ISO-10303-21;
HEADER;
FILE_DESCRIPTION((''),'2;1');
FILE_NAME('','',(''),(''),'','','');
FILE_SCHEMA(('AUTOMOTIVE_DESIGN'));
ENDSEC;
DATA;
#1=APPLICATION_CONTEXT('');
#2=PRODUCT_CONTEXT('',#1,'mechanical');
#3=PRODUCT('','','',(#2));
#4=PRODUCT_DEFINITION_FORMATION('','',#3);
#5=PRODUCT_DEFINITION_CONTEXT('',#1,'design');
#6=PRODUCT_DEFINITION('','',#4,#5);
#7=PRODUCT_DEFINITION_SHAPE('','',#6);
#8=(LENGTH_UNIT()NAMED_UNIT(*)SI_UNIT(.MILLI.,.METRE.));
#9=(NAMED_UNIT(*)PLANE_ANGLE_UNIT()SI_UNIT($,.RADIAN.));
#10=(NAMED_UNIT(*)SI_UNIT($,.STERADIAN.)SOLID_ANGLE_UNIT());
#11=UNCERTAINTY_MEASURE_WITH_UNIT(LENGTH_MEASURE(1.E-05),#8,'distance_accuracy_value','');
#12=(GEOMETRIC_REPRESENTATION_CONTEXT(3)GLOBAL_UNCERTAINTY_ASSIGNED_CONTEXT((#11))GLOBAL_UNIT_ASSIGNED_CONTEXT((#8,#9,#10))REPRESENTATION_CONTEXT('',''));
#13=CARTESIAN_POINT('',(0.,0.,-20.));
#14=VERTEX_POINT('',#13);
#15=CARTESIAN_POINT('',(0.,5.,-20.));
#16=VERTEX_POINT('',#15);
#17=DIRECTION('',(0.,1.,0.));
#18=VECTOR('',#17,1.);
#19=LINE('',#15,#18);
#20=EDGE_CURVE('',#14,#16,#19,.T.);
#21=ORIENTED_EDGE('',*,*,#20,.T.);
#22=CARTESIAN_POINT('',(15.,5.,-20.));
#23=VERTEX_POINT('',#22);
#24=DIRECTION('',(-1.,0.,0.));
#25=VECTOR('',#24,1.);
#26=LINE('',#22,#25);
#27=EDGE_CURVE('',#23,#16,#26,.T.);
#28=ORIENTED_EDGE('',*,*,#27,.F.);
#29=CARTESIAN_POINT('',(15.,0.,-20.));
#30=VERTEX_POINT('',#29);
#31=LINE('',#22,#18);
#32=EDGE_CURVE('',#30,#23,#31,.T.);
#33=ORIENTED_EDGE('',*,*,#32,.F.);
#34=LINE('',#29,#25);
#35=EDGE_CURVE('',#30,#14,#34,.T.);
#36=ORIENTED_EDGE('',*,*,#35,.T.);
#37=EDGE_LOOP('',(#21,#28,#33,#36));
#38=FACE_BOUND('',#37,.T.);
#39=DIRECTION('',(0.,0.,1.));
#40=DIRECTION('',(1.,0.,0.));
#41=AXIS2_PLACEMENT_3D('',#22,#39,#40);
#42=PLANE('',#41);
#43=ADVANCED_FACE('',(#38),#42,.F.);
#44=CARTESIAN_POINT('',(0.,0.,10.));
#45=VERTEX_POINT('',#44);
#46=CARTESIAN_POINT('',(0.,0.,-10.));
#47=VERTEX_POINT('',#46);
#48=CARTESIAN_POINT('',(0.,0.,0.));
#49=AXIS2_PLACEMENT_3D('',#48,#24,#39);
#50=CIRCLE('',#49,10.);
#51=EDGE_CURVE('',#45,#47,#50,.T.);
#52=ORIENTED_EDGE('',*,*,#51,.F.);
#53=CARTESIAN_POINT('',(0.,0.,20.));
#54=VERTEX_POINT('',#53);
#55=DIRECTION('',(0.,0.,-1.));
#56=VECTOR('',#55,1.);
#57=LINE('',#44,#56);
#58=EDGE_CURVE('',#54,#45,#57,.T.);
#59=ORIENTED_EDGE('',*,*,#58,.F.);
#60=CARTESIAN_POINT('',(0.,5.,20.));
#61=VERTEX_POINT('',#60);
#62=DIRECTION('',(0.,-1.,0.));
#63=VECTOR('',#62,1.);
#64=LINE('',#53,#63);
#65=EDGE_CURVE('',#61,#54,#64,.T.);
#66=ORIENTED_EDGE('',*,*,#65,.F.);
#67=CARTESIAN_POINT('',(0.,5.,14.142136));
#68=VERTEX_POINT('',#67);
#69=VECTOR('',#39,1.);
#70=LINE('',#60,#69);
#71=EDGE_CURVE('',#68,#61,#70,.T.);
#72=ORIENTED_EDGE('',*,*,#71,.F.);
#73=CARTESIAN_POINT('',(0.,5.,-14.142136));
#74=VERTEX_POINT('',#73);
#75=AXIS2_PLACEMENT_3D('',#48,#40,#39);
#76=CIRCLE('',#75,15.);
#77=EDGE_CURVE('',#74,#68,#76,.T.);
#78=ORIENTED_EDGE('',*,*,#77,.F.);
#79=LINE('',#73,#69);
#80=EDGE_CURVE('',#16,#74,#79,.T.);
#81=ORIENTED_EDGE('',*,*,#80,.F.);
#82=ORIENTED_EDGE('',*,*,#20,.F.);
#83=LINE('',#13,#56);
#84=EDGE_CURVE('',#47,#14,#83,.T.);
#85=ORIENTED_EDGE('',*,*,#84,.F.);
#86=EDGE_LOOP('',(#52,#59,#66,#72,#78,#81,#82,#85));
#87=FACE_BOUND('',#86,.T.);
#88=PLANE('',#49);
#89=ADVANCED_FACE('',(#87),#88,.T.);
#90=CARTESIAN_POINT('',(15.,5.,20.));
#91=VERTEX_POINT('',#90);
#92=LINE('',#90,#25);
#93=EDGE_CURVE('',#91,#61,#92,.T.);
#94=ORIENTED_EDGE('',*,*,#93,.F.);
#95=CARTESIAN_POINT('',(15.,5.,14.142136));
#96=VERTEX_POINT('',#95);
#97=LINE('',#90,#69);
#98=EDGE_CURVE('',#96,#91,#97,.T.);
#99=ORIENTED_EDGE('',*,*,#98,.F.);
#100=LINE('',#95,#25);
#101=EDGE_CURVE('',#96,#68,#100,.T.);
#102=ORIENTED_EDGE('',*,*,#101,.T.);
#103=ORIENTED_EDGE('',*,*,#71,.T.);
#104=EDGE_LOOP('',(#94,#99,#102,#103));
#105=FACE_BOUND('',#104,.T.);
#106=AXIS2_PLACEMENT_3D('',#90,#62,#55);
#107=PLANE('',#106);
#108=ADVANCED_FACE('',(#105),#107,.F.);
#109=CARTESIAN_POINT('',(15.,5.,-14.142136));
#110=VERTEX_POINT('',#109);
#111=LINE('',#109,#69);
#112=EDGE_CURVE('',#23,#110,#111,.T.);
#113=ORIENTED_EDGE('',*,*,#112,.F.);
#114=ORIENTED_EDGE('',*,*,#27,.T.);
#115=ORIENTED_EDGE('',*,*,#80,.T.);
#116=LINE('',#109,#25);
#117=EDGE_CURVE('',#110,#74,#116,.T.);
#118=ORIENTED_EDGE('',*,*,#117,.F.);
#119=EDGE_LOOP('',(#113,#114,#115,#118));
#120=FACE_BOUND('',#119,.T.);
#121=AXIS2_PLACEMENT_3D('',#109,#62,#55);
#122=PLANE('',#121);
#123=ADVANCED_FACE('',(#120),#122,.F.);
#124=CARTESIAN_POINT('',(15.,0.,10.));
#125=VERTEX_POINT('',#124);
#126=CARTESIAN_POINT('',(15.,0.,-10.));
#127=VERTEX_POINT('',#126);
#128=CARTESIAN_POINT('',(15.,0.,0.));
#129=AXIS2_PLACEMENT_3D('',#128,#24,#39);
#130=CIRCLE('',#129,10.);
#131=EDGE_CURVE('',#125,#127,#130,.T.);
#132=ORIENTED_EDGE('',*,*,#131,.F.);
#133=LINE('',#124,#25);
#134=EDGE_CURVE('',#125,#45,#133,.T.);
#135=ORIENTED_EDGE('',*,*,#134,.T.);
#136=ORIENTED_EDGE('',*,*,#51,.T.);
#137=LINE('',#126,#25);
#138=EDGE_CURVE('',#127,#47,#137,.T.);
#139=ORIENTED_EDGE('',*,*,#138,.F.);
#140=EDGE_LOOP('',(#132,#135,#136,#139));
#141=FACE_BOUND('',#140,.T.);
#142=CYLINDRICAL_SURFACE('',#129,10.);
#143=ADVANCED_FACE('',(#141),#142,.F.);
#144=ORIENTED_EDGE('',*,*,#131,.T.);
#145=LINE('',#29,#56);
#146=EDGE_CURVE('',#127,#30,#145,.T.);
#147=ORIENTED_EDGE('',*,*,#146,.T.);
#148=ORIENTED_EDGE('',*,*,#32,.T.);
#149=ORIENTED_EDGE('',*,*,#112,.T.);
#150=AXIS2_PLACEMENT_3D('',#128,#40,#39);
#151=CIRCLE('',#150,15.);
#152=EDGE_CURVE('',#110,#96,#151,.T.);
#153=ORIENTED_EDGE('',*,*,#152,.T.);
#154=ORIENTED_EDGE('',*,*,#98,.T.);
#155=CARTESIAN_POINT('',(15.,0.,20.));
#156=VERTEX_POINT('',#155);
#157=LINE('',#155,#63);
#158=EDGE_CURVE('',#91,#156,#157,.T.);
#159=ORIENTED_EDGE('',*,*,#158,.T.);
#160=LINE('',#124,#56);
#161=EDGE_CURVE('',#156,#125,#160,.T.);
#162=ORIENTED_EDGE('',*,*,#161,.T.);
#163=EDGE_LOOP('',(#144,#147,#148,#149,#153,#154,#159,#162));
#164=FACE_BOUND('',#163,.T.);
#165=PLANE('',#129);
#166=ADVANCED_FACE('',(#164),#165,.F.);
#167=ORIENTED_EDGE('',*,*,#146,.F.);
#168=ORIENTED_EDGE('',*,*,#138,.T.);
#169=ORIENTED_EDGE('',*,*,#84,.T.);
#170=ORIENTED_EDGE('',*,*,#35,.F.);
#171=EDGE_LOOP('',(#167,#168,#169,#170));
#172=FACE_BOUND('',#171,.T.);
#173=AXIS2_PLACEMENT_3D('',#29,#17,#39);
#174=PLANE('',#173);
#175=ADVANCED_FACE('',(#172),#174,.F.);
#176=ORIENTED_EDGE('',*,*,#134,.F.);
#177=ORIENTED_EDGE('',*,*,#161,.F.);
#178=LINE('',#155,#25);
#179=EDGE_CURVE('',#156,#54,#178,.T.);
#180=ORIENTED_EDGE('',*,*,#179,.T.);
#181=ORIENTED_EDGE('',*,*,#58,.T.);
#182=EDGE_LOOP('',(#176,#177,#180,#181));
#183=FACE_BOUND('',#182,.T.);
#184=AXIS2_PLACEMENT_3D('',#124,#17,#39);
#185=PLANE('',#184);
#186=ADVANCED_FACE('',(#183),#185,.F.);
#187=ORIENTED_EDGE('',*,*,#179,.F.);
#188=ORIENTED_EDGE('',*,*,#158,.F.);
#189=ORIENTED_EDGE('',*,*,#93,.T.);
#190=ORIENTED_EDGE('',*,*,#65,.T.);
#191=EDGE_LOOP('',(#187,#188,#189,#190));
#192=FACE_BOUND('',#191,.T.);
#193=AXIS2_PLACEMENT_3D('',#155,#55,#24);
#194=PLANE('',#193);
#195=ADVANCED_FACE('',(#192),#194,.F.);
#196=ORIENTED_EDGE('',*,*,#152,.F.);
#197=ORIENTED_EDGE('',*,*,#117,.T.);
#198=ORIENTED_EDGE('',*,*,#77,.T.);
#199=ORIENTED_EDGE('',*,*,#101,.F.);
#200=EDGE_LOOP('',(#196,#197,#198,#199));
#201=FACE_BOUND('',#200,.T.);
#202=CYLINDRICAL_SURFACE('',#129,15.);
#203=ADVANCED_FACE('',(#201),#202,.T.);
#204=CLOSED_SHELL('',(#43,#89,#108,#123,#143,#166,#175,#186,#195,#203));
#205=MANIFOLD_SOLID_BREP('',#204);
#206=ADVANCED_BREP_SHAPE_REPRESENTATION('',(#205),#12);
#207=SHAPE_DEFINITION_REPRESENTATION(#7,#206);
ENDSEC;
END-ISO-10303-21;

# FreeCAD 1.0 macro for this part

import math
import FreeCAD as App
import Part
import Sketcher

V = App.Vector

doc = App.newDocument("Part")
body = doc.addObject("PartDesign::Body", "Body")

# Sketch on YZ plane
sketch1 = doc.addObject("Sketcher::SketchObject", "Sketch")
body.addObject(sketch1)
sketch1.AttachmentSupport = (doc.YZ_Plane, [""])
sketch1.MapMode = "FlatFace"
sketch1.addGeometry(Part.LineSegment(V(0, 20, 0), V(0, 10, 0)), False)
sketch1.addGeometry(Part.ArcOfCircle(Part.Circle(V(0, 0, 0), V(0, 0, 1), 10), math.radians(-90), math.radians(90)), False)
sketch1.addGeometry(Part.LineSegment(V(0, -10, 0), V(0, -20, 0)), False)
sketch1.addGeometry(Part.LineSegment(V(0, -20, 0), V(5, -20, 0)), False)
sketch1.addGeometry(Part.LineSegment(V(5, -20, 0), V(5, -14.142136, 0)), False)
sketch1.addGeometry(Part.ArcOfCircle(Part.Circle(V(0, 0, 0), V(0, 0, 1), 15), math.radians(-70.528779), math.radians(70.528779)), False)
sketch1.addGeometry(Part.LineSegment(V(5, 14.142136, 0), V(5, 20, 0)), False)
sketch1.addGeometry(Part.LineSegment(V(5, 20, 0), V(0, 20, 0)), False)
sketch1.addConstraint(Sketcher.Constraint("Coincident", 0, 2, 1, 2))
sketch1.addConstraint(Sketcher.Constraint("Coincident", 1, 1, 2, 1))
sketch1.addConstraint(Sketcher.Constraint("Coincident", 2, 2, 3, 1))
sketch1.addConstraint(Sketcher.Constraint("Coincident", 3, 2, 4, 1))
sketch1.addConstraint(Sketcher.Constraint("Coincident", 4, 2, 5, 1))
sketch1.addConstraint(Sketcher.Constraint("Coincident", 5, 2, 6, 1))
sketch1.addConstraint(Sketcher.Constraint("Coincident", 6, 2, 7, 1))
sketch1.addConstraint(Sketcher.Constraint("Coincident", 7, 2, 0, 1))
sketch1.addConstraint(Sketcher.Constraint("Vertical", 0))
sketch1.addConstraint(Sketcher.Constraint("Vertical", 2))
sketch1.addConstraint(Sketcher.Constraint("Horizontal", 3))
sketch1.addConstraint(Sketcher.Constraint("Vertical", 4))
sketch1.addConstraint(Sketcher.Constraint("Vertical", 6))
sketch1.addConstraint(Sketcher.Constraint("Horizontal", 7))
sketch1.addConstraint(Sketcher.Constraint("Coincident", 1, 3, -1, 1))
sketch1.addConstraint(Sketcher.Constraint("Coincident", 5, 3, -1, 1))
sketch1.addConstraint(Sketcher.Constraint("Symmetric", 2, 2, 7, 2, -1, 1))
sketch1.addConstraint(Sketcher.Constraint("PointOnObject", 0, 2, -2))
sketch1.addConstraint(Sketcher.Constraint("Vertical", 4, 2, 5, 2))
sketch1.addConstraint(Sketcher.Constraint("Radius", 1, 10.0))
sketch1.addConstraint(Sketcher.Constraint("Radius", 5, 15.0))
sketch1.addConstraint(Sketcher.Constraint("DistanceX", 3, 1, 3, 2, 5.0))
sketch1.addConstraint(Sketcher.Constraint("DistanceY", 0, 2, 0, 1, 10.0))
pad1 = doc.addObject("PartDesign::Pad", "Pad")
body.addObject(pad1)
pad1.Profile = sketch1
pad1.Length = 15

doc.recompute()
